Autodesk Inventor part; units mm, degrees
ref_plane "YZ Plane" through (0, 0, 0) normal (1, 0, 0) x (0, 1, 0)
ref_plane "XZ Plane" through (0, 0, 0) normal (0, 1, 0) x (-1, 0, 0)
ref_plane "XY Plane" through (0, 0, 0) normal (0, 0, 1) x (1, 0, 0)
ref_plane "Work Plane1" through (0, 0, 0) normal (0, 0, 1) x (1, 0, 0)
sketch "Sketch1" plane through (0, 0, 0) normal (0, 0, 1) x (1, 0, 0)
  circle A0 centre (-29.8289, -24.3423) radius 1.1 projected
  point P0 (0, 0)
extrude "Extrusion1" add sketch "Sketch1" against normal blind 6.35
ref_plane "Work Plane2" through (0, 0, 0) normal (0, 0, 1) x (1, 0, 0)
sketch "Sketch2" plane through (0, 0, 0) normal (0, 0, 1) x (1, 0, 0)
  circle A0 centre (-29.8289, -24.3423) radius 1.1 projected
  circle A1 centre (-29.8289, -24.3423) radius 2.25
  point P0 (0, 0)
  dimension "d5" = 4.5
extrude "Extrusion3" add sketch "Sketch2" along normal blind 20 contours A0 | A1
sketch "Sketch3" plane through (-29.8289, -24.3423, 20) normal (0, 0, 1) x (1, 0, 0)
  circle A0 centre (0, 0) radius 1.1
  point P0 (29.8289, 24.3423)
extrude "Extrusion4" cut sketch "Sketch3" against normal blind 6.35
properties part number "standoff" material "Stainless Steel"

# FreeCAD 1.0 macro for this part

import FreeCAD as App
import Part
import Sketcher
Q = App.Units.Quantity

doc = App.newDocument("Part")
body = doc.addObject("PartDesign::Body", "Body")

# Sketch on XY plane
sketch1 = body.newObject("Sketcher::SketchObject", "Sketch")
sketch1.AttachmentSupport = (doc.getObject("XY_Plane"), [""])
sketch1.MapMode = "FlatFace"
sketch1.addGeometry(Part.Circle(App.Vector(-29.8, -24.3, 0), App.Vector(0, 0, 1), 1.1), False)
sketch1.addConstraint([
    Sketcher.Constraint("Diameter", 0, Q("2.2 mm")),
    Sketcher.Constraint("DistanceX", 0, 3, -1, 1, Q("29.829 mm")),
    Sketcher.Constraint("DistanceY", 0, 3, -1, 1, Q("24.3423 mm")),
])
pad1 = body.newObject("PartDesign::Pad", "Pad")
pad1.Profile = sketch1
pad1.Length = 6.35
pad1.Reversed = True

# Sketch on XY plane
sketch2 = body.newObject("Sketcher::SketchObject", "Sketch001")
sketch2.AttachmentSupport = (doc.getObject("XY_Plane"), [""])
sketch2.MapMode = "FlatFace"
sketch2.addGeometry(Part.Circle(App.Vector(-29.8, -24.3, 0), App.Vector(0, 0, 1), 2.2), False)
sketch2.addConstraint([
    Sketcher.Constraint("Diameter", 0, Q("4.5 mm")),
    Sketcher.Constraint("DistanceX", 0, 3, -1, 1, Q("29.829 mm")),
    Sketcher.Constraint("DistanceY", 0, 3, -1, 1, Q("24.3423 mm")),
])
pad2 = body.newObject("PartDesign::Pad", "Pad001")
pad2.Profile = sketch2
pad2.Length = 20

# Sketch on XY plane
sketch3 = body.newObject("Sketcher::SketchObject", "Sketch002")
sketch3.AttachmentSupport = (doc.getObject("XY_Plane"), [""])
sketch3.MapMode = "FlatFace"
sketch3.AttachmentOffset = App.Placement(App.Vector(0, 0, 20), App.Rotation())
sketch3.addGeometry(Part.Circle(App.Vector(-29.8, -24.3, 0), App.Vector(0, 0, 1), 1.1), False)
sketch3.addConstraint([
    Sketcher.Constraint("Diameter", 0, Q("2.2 mm")),
    Sketcher.Constraint("DistanceX", 0, 3, -1, 1, Q("29.829 mm")),
    Sketcher.Constraint("DistanceY", 0, 3, -1, 1, Q("24.3423 mm")),
])
pocket1 = body.newObject("PartDesign::Pocket", "Pocket")
pocket1.Profile = sketch3
pocket1.Length = 6.35

doc.recompute()
